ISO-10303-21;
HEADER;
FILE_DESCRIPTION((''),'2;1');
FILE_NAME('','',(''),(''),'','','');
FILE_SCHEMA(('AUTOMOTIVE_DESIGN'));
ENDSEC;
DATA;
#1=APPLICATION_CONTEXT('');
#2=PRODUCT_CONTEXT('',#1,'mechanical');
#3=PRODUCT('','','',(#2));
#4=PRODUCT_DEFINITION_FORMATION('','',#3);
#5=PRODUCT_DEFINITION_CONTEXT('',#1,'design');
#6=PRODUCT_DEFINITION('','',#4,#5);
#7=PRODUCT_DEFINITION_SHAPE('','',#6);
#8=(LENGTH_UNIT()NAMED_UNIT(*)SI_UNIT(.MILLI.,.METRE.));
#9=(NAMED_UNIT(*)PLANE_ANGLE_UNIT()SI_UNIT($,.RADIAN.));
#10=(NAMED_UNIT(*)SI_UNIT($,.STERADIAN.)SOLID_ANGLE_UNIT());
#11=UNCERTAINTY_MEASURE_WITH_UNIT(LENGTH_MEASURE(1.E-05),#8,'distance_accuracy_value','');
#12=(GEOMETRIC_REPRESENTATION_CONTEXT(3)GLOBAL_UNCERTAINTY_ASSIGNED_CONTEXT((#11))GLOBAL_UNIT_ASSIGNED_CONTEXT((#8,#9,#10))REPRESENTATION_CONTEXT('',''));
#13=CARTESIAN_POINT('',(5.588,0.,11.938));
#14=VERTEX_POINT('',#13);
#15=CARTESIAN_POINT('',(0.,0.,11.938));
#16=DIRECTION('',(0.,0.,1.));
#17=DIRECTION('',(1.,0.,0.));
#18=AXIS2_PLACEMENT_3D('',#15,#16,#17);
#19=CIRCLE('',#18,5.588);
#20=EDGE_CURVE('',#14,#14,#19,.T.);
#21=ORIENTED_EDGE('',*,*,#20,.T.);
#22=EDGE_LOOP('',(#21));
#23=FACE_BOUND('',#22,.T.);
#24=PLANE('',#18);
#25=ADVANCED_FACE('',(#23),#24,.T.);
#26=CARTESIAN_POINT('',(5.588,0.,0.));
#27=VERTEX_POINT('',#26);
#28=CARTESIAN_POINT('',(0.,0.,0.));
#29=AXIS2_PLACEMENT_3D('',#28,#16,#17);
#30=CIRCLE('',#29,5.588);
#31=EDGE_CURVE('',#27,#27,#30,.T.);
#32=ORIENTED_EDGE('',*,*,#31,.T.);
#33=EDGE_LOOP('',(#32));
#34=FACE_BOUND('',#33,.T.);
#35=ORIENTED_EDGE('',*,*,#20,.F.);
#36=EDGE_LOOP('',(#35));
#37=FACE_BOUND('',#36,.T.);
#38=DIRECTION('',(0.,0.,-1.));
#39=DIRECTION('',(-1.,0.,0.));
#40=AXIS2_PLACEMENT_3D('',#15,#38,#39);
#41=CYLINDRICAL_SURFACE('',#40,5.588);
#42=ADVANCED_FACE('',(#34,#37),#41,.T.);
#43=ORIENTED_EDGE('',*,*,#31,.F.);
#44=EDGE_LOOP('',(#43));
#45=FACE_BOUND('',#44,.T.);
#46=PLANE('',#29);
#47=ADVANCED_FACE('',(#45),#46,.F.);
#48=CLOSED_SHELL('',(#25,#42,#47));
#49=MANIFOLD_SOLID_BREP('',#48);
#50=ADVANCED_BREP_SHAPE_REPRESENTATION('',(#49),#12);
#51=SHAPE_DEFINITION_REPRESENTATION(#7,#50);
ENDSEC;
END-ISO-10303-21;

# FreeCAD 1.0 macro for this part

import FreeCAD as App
import Part
import Sketcher

V = App.Vector
Q = App.Units.Quantity

doc = App.newDocument("Part")
body = doc.addObject("PartDesign::Body", "Body")

sketch1 = doc.addObject("Sketcher::SketchObject", "Sketch")
body.addObject(sketch1)
sketch1.AttachmentSupport = (doc.XY_Plane, [""])
sketch1.MapMode = "FlatFace"
sketch1.addGeometry(Part.Circle(V(0, 0, 0), V(0, 0, 1), 6), False)
sketch1.addConstraint([
    Sketcher.Constraint("Coincident", 0, 3, -1, 1),
    Sketcher.Constraint("Diameter", 0, Q("0.44 in")),
])
pad1 = doc.addObject("PartDesign::Pad", "Pad")
body.addObject(pad1)
pad1.Profile = sketch1
pad1.Length = Q("0.47 in")

doc.recompute()
